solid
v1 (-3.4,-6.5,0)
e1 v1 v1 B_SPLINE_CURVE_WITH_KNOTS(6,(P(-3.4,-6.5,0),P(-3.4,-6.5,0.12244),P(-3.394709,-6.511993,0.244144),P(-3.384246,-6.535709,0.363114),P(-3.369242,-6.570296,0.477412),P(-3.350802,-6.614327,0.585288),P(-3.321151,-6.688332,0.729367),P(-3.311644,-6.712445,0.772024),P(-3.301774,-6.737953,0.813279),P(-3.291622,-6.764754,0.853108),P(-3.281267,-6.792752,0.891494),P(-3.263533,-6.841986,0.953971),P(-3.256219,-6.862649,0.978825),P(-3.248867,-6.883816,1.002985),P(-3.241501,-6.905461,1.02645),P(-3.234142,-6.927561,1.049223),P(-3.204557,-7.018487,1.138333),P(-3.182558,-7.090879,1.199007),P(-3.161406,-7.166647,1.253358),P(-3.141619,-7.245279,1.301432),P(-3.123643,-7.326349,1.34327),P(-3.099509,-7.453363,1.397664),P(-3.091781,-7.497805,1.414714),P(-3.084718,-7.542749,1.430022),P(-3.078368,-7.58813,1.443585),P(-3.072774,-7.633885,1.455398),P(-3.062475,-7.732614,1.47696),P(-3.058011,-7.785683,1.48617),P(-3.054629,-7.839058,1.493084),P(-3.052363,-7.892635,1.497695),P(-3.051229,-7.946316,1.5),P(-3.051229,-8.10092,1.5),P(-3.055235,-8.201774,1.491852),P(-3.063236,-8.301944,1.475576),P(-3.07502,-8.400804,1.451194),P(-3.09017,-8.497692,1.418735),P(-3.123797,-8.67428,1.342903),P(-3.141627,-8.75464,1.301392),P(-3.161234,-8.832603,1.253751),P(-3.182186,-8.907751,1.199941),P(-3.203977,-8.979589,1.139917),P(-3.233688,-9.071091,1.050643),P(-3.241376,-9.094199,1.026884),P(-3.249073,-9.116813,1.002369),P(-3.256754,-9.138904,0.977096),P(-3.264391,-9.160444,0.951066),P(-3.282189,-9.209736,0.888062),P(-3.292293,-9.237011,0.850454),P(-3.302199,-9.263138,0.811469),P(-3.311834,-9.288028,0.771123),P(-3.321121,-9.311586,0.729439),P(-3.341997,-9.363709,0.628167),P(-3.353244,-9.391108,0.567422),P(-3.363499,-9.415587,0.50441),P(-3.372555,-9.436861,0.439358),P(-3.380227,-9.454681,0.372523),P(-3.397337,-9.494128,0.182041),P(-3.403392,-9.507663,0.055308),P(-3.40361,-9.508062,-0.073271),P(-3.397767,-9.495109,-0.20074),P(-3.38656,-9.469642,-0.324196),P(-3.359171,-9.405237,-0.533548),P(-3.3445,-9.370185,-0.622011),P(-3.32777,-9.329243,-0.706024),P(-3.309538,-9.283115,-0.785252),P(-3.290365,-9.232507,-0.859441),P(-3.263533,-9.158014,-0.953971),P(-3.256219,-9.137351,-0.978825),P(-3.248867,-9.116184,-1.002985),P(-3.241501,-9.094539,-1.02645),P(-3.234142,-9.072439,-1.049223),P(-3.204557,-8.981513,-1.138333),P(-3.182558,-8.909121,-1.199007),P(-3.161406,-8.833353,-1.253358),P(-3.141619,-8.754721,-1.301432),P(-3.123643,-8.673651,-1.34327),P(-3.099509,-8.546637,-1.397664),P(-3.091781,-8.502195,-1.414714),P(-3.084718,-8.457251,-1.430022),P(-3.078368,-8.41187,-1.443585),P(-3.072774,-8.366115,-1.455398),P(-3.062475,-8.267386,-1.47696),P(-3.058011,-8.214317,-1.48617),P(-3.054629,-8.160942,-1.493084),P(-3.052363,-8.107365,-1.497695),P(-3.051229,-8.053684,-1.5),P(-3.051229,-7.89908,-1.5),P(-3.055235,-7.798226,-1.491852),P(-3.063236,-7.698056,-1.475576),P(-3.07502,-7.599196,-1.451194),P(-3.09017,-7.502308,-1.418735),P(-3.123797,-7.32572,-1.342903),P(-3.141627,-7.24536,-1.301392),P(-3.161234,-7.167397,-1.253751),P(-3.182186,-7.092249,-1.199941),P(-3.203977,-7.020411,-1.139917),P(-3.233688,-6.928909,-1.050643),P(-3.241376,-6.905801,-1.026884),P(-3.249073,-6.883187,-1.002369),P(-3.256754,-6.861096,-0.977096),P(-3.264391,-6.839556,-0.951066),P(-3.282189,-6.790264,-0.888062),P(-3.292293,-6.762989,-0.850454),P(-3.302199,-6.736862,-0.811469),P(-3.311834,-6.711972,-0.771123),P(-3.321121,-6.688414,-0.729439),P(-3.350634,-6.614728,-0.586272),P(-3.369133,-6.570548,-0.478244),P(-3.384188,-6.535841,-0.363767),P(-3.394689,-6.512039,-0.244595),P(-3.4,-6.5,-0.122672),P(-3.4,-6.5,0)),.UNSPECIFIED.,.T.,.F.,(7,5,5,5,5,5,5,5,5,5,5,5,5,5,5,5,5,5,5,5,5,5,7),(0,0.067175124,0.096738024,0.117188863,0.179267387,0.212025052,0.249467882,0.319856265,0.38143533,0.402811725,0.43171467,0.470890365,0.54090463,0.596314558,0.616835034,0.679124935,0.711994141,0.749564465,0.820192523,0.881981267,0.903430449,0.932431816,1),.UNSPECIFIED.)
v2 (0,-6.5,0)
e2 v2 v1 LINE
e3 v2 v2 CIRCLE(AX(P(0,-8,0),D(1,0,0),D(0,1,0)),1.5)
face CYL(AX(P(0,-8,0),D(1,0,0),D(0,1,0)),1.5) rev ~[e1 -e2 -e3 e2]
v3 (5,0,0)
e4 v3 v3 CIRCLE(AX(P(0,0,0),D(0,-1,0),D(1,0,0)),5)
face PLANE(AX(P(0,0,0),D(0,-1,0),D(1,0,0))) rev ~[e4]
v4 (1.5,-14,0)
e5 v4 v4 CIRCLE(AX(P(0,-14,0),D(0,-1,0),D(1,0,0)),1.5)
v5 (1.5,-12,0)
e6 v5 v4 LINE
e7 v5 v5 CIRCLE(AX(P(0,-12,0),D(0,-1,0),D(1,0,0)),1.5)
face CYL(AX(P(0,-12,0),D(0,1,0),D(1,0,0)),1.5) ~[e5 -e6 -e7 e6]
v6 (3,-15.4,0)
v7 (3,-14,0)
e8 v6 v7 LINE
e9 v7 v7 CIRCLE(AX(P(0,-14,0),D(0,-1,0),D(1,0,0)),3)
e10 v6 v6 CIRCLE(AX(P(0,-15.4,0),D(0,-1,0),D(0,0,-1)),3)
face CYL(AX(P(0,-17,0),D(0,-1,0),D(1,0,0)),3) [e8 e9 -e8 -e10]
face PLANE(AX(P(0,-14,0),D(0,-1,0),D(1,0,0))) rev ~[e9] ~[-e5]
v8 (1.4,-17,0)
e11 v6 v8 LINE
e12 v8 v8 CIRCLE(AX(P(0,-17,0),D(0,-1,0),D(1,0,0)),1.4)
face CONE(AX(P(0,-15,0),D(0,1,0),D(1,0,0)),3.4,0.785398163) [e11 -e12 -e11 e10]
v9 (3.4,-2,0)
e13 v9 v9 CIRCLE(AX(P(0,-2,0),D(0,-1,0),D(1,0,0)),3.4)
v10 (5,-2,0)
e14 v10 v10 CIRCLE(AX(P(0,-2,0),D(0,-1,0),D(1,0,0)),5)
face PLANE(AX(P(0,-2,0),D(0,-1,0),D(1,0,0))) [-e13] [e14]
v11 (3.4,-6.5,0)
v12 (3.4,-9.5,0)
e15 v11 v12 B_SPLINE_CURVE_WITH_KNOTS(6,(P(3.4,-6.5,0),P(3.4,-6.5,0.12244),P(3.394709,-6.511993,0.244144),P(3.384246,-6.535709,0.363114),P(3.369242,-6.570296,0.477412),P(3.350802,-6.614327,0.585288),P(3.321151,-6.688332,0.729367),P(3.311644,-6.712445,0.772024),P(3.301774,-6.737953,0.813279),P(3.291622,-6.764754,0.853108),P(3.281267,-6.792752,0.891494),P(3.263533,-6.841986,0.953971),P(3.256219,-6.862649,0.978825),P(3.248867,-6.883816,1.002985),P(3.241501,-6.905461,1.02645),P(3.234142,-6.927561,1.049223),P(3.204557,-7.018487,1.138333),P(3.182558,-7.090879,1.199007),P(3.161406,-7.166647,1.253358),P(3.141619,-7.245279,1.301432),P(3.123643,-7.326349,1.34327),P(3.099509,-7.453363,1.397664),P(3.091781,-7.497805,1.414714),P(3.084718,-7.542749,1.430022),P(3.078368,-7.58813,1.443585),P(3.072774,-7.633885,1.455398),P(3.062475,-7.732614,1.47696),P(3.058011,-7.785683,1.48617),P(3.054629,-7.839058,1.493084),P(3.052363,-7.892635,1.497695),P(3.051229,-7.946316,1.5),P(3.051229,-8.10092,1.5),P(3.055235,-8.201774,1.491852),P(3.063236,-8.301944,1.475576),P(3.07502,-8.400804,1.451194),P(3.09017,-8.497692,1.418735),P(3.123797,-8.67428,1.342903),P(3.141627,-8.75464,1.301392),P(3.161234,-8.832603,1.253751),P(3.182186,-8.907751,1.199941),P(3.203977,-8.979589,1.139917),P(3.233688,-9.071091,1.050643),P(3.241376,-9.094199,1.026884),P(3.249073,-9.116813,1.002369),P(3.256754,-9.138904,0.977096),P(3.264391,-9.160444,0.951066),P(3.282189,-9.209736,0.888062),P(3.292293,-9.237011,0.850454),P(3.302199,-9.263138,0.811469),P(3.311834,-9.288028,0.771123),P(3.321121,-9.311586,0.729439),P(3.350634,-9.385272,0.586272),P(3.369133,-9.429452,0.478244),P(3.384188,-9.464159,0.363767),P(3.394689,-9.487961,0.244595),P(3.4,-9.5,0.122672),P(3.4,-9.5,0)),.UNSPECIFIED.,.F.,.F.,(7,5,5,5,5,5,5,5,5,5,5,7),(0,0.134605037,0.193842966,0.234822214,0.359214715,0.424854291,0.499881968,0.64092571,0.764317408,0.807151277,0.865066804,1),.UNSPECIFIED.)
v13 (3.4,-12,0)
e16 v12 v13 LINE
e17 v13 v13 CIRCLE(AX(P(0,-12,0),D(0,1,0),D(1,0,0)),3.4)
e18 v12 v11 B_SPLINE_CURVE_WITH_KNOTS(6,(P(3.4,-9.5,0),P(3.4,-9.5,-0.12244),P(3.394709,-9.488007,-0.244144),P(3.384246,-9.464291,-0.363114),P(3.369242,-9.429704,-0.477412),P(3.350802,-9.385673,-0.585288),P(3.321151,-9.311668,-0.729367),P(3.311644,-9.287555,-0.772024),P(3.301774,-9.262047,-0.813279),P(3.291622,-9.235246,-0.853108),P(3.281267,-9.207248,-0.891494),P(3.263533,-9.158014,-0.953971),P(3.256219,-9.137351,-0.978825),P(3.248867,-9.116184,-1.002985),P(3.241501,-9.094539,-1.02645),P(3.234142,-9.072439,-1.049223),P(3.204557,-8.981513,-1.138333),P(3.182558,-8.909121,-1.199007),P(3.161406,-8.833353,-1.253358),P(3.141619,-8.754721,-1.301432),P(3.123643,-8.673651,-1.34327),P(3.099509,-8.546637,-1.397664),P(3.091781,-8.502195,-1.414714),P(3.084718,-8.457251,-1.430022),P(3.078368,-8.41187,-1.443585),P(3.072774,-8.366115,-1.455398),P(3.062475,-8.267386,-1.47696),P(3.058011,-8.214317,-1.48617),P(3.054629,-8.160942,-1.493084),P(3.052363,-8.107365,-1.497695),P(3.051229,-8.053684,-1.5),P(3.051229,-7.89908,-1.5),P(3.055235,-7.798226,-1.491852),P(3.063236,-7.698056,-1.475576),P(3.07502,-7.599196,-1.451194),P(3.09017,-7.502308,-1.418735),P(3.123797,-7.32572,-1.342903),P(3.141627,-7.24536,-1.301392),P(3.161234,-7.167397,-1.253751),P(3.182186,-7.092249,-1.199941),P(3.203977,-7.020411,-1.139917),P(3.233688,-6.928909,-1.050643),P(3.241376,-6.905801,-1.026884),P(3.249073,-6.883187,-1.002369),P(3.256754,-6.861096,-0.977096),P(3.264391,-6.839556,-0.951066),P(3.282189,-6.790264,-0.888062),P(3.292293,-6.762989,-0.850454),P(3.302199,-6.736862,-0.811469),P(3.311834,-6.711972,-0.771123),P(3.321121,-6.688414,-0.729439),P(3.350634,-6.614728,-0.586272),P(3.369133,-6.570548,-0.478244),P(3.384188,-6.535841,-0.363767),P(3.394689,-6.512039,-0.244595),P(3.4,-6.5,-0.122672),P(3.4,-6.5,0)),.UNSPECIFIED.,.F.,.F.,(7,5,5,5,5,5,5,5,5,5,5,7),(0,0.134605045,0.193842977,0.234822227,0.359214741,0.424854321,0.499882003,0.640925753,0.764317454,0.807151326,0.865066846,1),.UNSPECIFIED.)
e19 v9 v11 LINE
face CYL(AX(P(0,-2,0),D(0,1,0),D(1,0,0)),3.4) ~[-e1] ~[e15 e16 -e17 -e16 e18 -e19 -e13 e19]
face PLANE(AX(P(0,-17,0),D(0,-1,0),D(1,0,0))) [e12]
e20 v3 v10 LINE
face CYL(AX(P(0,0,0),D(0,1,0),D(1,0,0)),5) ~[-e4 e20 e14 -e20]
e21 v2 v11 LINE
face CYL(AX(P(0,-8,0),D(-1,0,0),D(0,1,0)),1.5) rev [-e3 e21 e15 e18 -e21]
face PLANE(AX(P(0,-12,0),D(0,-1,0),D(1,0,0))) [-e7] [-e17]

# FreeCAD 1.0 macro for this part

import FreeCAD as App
import Part
import Sketcher


def edges_at(feature, points):
    """Names of the edges that pass closest to the given points."""
    edges = feature.Shape.Edges
    near = lambda p: min(range(len(edges)), key=lambda i: edges[i].distToShape(Part.Vertex(*p))[0])
    return sorted({f"Edge{near(p) + 1}" for p in points})

doc = App.newDocument("Part")
body = doc.addObject("PartDesign::Body", "Body")

sketch1 = doc.addObject("Sketcher::SketchObject", "Sketch")
body.addObject(sketch1)
sketch1.AttachmentSupport = (doc.XZ_Plane, [""])
sketch1.MapMode = "FlatFace"
sketch1.addGeometry(Part.Circle(App.Vector(0, 0, 0), App.Vector(0, 0, 1), 5), False)
sketch1.addConstraint([
    Sketcher.Constraint("Coincident", 0, 3, -1, 1),
    Sketcher.Constraint("Diameter", 0, 10.0),
])
pad1 = doc.addObject("PartDesign::Pad", "Pad")
body.addObject(pad1)
pad1.Profile = sketch1
pad1.Length = 2

sketch2 = doc.addObject("Sketcher::SketchObject", "Sketch001")
body.addObject(sketch2)
sketch2.AttachmentSupport = (doc.XZ_Plane, [""])
sketch2.MapMode = "FlatFace"
sketch2.AttachmentOffset = App.Placement(App.Vector(0, 0, 2), App.Rotation())
sketch2.addGeometry(Part.Circle(App.Vector(0, 0, 0), App.Vector(0, 0, 1), 3.4), False)
sketch2.addConstraint([
    Sketcher.Constraint("Coincident", 0, 3, -1, 1),
    Sketcher.Constraint("Diameter", 0, 6.8),
])
pad2 = doc.addObject("PartDesign::Pad", "Pad001")
body.addObject(pad2)
pad2.Profile = sketch2
pad2.Length = 15

sketch3 = doc.addObject("Sketcher::SketchObject", "Sketch002")
body.addObject(sketch3)
sketch3.AttachmentSupport = (doc.XZ_Plane, [""])
sketch3.MapMode = "FlatFace"
sketch3.AttachmentOffset = App.Placement(App.Vector(0, 0, 12), App.Rotation())
sketch3.addGeometry([
    Part.Circle(App.Vector(0, 0, 0), App.Vector(0, 0, 1), 3.8),
    Part.Circle(App.Vector(0, 0, 0), App.Vector(0, 0, 1), 1.5),
], False)
sketch3.addConstraint([
    Sketcher.Constraint("Coincident", 0, 3, -1, 1),
    Sketcher.Constraint("Coincident", 1, 3, -1, 1),
    Sketcher.Constraint("Diameter", 1, 3.0),
    Sketcher.Constraint("Diameter", 0, 7.5),
])
pocket1 = doc.addObject("PartDesign::Pocket", "Pocket")
body.addObject(pocket1)
pocket1.Profile = sketch3
pocket1.Length = 2
pocket1.Reversed = True

sketch4 = doc.addObject("Sketcher::SketchObject", "Sketch003")
body.addObject(sketch4)
sketch4.AttachmentSupport = (doc.YZ_Plane, [""])
sketch4.MapMode = "FlatFace"
sketch4.addGeometry(Part.Circle(App.Vector(-8, 0, 0), App.Vector(0, 0, 1), 1.5), False)
sketch4.addConstraint([
    Sketcher.Constraint("PointOnObject", 0, 3, -1),
    Sketcher.Constraint("Diameter", 0, 3.0),
    Sketcher.Constraint("DistanceX", 0, 3, -1, 1, 8.0),
])
pocket2 = doc.addObject("PartDesign::Pocket", "Pocket001")
body.addObject(pocket2)
pocket2.Profile = sketch4
pocket2.Type = "ThroughAll"
pocket2.Midplane = True
doc.recompute()

chamfer = doc.addObject("PartDesign::Chamfer", "Chamfer")
body.addObject(chamfer)
chamfer.Base = (pocket2, edges_at(pocket2, [(-3.4, -17, 0)]))
chamfer.Size = 2

sketch5 = doc.addObject("Sketcher::SketchObject", "Sketch004")
body.addObject(sketch5)
sketch5.AttachmentSupport = (doc.XZ_Plane, [""])
sketch5.MapMode = "FlatFace"
sketch5.AttachmentOffset = App.Placement(App.Vector(0, 0, 17), App.Rotation())
sketch5.addGeometry([
    Part.Circle(App.Vector(0, 0, 0), App.Vector(0, 0, 1), 3.5),
    Part.Circle(App.Vector(0, 0, 0), App.Vector(0, 0, 1), 3),
], False)
sketch5.addConstraint([
    Sketcher.Constraint("Coincident", 0, 3, -1, 1),
    Sketcher.Constraint("Coincident", 1, 3, -1, 1),
    Sketcher.Constraint("Diameter", 0, 7.0),
    Sketcher.Constraint("Diameter", 1, 6.0),
])
pocket3 = doc.addObject("PartDesign::Pocket", "Pocket002")
body.addObject(pocket3)
pocket3.Profile = sketch5
pocket3.Length = 5

doc.recompute()
